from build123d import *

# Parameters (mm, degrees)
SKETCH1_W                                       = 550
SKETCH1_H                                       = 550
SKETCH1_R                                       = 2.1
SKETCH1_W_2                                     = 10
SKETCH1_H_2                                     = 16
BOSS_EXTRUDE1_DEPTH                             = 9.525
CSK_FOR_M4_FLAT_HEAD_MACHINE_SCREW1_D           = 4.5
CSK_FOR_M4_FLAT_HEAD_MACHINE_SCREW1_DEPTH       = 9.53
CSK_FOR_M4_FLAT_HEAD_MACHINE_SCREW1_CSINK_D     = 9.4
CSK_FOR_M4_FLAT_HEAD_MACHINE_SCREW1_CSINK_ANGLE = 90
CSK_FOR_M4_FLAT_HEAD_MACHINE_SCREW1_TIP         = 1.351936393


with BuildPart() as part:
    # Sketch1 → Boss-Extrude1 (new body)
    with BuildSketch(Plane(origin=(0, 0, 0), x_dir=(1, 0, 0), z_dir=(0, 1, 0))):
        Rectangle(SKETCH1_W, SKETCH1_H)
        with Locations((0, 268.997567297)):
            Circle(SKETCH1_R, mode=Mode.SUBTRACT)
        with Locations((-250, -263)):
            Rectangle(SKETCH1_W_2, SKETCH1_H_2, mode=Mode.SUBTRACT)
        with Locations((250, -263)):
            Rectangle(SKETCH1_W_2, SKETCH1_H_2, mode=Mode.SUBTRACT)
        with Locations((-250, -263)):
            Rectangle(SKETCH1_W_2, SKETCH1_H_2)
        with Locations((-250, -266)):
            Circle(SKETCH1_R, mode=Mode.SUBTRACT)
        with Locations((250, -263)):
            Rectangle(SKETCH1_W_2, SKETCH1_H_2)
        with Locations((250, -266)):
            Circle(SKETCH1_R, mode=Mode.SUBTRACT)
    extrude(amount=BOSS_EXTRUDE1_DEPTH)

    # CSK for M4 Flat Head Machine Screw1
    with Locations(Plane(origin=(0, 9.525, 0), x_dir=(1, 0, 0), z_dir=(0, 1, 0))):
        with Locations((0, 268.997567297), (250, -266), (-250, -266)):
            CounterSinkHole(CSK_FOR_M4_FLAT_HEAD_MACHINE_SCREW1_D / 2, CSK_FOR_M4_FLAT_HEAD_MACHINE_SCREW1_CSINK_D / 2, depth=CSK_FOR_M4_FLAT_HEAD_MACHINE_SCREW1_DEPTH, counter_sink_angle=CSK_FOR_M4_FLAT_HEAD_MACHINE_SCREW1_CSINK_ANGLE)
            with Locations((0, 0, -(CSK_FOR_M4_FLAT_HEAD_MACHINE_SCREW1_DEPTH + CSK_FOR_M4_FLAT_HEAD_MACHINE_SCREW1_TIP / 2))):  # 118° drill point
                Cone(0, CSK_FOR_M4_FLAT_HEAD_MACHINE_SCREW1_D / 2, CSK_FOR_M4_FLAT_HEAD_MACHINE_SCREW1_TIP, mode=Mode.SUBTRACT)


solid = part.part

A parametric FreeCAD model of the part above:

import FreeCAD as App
import Part
import Sketcher

doc = App.newDocument("Part")
body = doc.addObject("PartDesign::Body", "Body")

# Sketch on XZ plane
sketch1 = body.newObject("Sketcher::SketchObject", "Sketch")
sketch1.AttachmentSupport = (doc.getObject("XZ_Plane"), [""])
sketch1.MapMode = "FlatFace"
sketch1.addGeometry([
    Part.LineSegment(App.Vector(-275, -275, 0), App.Vector(-275, 275, 0)),  # 0
    Part.LineSegment(App.Vector(-275, 275, 0), App.Vector(275, 275, 0)),  # 1
    Part.LineSegment(App.Vector(275, 275, 0), App.Vector(275, -275, 0)),  # 2
    Part.LineSegment(App.Vector(275, -275, 0), App.Vector(-275, -275, 0)),  # 3
    Part.Circle(App.Vector(-250, 266, 0), App.Vector(0, 0, 1), 2.1),  # 4
    Part.Circle(App.Vector(250, 266, 0), App.Vector(0, 0, 1), 2.1),  # 5
    Part.Circle(App.Vector(0, -269, 0), App.Vector(0, 0, 1), 2.1),  # 6
], False)
sketch1.addConstraint([
    Sketcher.Constraint("Coincident", 0, 2, 1, 1),
    Sketcher.Constraint("Coincident", 1, 2, 2, 1),
    Sketcher.Constraint("Coincident", 2, 2, 3, 1),
    Sketcher.Constraint("Coincident", 3, 2, 0, 1),
    Sketcher.Constraint("Vertical", 0),
    Sketcher.Constraint("Horizontal", 1),
    Sketcher.Constraint("Vertical", 2),
    Sketcher.Constraint("Horizontal", 3),
    Sketcher.Constraint("Equal", 4, 5),
    Sketcher.Constraint("Equal", 5, 6),
    Sketcher.Constraint("Symmetric", 0, 2, 2, 2, -1, 1),
    Sketcher.Constraint("Symmetric", 4, 3, 5, 3, -2),
    Sketcher.Constraint("PointOnObject", 6, 3, -2),
    Sketcher.Constraint("Equal", 3, 0),
    Sketcher.Constraint("Diameter", 4, 4.2),
    Sketcher.Constraint("DistanceX", 1, 1, 1, 2, 550.0),
    Sketcher.Constraint("DistanceX", 4, 3, -1, 1, 250.0),
    Sketcher.Constraint("DistanceY", -1, 1, 4, 3, 266.0),
    Sketcher.Constraint("DistanceY", 6, 3, -1, 1, 268.997567),
])
pad1 = body.newObject("PartDesign::Pad", "Pad")
pad1.Profile = sketch1
pad1.Length = 9.525
pad1.Reversed = True

# Sketch on XZ plane
sketch2 = body.newObject("Sketcher::SketchObject", "Sketch001")
sketch2.AttachmentSupport = (doc.getObject("XZ_Plane"), [""])
sketch2.MapMode = "FlatFace"
sketch2.AttachmentOffset = App.Placement(App.Vector(0, 0, -9.525), App.Rotation())
sketch2.addGeometry([
    Part.Circle(App.Vector(0, -269, 0), App.Vector(0, 0, 1), 2.2),
    Part.Circle(App.Vector(250, 266, 0), App.Vector(0, 0, 1), 2.2),
    Part.Circle(App.Vector(-250, 266, 0), App.Vector(0, 0, 1), 2.2),
], False)
sketch2.addConstraint([
    Sketcher.Constraint("Equal", 0, 1),
    Sketcher.Constraint("Equal", 1, 2),
    Sketcher.Constraint("Symmetric", 1, 3, 2, 3, -2),
    Sketcher.Constraint("PointOnObject", 0, 3, -2),
    Sketcher.Constraint("Diameter", 0, 4.5),
    Sketcher.Constraint("DistanceX", -1, 1, 1, 3, 250.0),
    Sketcher.Constraint("DistanceY", -1, 1, 1, 3, 266.0),
    Sketcher.Constraint("DistanceY", 0, 3, -1, 1, 268.997567),
])
doc.recompute()
hole = body.newObject("PartDesign::Hole", "Hole")
hole.Profile = sketch2
hole.ThreadType = "None"
hole.Diameter = 4.5
hole.DepthType = "Dimension"
hole.Depth = 9.53
hole.DrillPoint = "Angled"
hole.DrillPointAngle = 118
hole.HoleCutType = "Countersink"
hole.HoleCutDiameter = 9.4
hole.HoleCutCountersinkAngle = 90
hole.Reversed = True

doc.recompute()
